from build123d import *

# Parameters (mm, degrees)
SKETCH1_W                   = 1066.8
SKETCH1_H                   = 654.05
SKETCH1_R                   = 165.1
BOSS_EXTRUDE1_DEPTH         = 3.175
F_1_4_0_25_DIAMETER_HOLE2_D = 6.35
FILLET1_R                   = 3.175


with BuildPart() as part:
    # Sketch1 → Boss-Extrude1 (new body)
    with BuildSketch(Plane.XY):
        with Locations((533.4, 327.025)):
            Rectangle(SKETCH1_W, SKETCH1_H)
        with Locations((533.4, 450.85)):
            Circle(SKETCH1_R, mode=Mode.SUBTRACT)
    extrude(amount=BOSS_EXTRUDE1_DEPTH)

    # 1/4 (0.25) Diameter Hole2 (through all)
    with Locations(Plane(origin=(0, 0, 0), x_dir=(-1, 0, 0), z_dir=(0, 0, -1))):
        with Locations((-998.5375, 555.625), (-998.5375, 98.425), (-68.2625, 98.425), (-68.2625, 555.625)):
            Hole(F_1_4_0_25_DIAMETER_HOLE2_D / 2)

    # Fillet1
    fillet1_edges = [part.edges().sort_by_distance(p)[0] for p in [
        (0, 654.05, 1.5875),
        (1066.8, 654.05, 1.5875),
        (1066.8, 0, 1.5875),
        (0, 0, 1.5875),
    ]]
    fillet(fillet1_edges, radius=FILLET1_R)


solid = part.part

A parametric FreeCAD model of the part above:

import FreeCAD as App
import Part
import Sketcher
Q = App.Units.Quantity


def edges_at(feature, points):
    """Names of the edges that pass closest to the given points."""
    edges = feature.Shape.Edges
    near = lambda p: min(range(len(edges)), key=lambda i: edges[i].distToShape(Part.Vertex(*p))[0])
    return sorted({f"Edge{near(p) + 1}" for p in points})

doc = App.newDocument("Part")
body = doc.addObject("PartDesign::Body", "Body")

sketch1 = doc.addObject("Sketcher::SketchObject", "Sketch")
body.addObject(sketch1)
sketch1.AttachmentSupport = (doc.XY_Plane, [""])
sketch1.MapMode = "FlatFace"
sketch1.addGeometry([
    Part.LineSegment(App.Vector(0, 654, 0), App.Vector(0, 0, 0)),
    Part.LineSegment(App.Vector(0, 0, 0), App.Vector(1067, 0, 0)),
    Part.LineSegment(App.Vector(1067, 0, 0), App.Vector(1067, 654, 0)),
    Part.LineSegment(App.Vector(1067, 654, 0), App.Vector(0, 654, 0)),
    Part.Circle(App.Vector(533, 451, 0), App.Vector(0, 0, 1), 165),
], False)
sketch1.addConstraint([
    Sketcher.Constraint("Coincident", 0, 2, 1, 1),
    Sketcher.Constraint("Coincident", 1, 2, 2, 1),
    Sketcher.Constraint("Coincident", 2, 2, 3, 1),
    Sketcher.Constraint("Coincident", 3, 2, 0, 1),
    Sketcher.Constraint("Vertical", 0),
    Sketcher.Constraint("Horizontal", 1),
    Sketcher.Constraint("Vertical", 2),
    Sketcher.Constraint("Horizontal", 3),
    Sketcher.Constraint("Coincident", 0, 2, -1, 1),
    Sketcher.Constraint("Diameter", 4, Q("13 in")),
    Sketcher.Constraint("DistanceX", 1, 1, 1, 2, Q("42 in")),
    Sketcher.Constraint("DistanceX", -1, 1, 4, 3, Q("21 in")),
    Sketcher.Constraint("DistanceY", 4, 3, 2, 2, Q("8 in")),
    Sketcher.Constraint("DistanceY", 0, 2, 0, 1, Q("25.75 in")),
])
pad1 = doc.addObject("PartDesign::Pad", "Pad")
body.addObject(pad1)
pad1.Profile = sketch1
pad1.Length = Q("0.125 in")

sketch2 = doc.addObject("Sketcher::SketchObject", "Sketch001")
body.addObject(sketch2)
sketch2.AttachmentSupport = (doc.XY_Plane, [""])
sketch2.MapMode = "FlatFace"
sketch2.addGeometry([
    Part.Circle(App.Vector(998.5, 555.6, 0), App.Vector(0, 0, 1), 3.2),
    Part.Circle(App.Vector(998.5, 98.4, 0), App.Vector(0, 0, 1), 3.2),
    Part.Circle(App.Vector(68.3, 98.4, 0), App.Vector(0, 0, 1), 3.2),
    Part.Circle(App.Vector(68.3, 555.6, 0), App.Vector(0, 0, 1), 3.2),
], False)
sketch2.addConstraint([
    Sketcher.Constraint("Equal", 0, 1),
    Sketcher.Constraint("Equal", 1, 2),
    Sketcher.Constraint("Equal", 2, 3),
    Sketcher.Constraint("Horizontal", 1, 3, 2, 3),
    Sketcher.Constraint("Horizontal", 0, 3, 3, 3),
    Sketcher.Constraint("Vertical", 0, 3, 1, 3),
    Sketcher.Constraint("Vertical", 2, 3, 3, 3),
    Sketcher.Constraint("Diameter", 0, Q("0.25 in")),
    Sketcher.Constraint("DistanceY", 1, 3, 0, 3, Q("18 in")),
    Sketcher.Constraint("DistanceX", -1, 1, 0, 3, Q("39.3125 in")),
    Sketcher.Constraint("DistanceY", -1, 1, 0, 3, Q("21.875 in")),
    Sketcher.Constraint("DistanceX", -1, 1, 2, 3, Q("2.6875 in")),
])
doc.recompute()
hole = doc.addObject("PartDesign::Hole", "Hole")
body.addObject(hole)
hole.Profile = sketch2
hole.ThreadType = "None"
hole.Diameter = Q("0.25 in")
hole.DepthType = "ThroughAll"
hole.Reversed = True
doc.recompute()

fillet = doc.addObject("PartDesign::Fillet", "Fillet")
body.addObject(fillet)
fillet.Base = (hole, edges_at(hole, [
    (0, 654.05, 1.587),
    (1066.8, 654.05, 1.587),
    (1066.8, 0, 1.587),
    (0, 0, 1.587),
]))
fillet.Radius = Q("0.125 in")

doc.recompute()
